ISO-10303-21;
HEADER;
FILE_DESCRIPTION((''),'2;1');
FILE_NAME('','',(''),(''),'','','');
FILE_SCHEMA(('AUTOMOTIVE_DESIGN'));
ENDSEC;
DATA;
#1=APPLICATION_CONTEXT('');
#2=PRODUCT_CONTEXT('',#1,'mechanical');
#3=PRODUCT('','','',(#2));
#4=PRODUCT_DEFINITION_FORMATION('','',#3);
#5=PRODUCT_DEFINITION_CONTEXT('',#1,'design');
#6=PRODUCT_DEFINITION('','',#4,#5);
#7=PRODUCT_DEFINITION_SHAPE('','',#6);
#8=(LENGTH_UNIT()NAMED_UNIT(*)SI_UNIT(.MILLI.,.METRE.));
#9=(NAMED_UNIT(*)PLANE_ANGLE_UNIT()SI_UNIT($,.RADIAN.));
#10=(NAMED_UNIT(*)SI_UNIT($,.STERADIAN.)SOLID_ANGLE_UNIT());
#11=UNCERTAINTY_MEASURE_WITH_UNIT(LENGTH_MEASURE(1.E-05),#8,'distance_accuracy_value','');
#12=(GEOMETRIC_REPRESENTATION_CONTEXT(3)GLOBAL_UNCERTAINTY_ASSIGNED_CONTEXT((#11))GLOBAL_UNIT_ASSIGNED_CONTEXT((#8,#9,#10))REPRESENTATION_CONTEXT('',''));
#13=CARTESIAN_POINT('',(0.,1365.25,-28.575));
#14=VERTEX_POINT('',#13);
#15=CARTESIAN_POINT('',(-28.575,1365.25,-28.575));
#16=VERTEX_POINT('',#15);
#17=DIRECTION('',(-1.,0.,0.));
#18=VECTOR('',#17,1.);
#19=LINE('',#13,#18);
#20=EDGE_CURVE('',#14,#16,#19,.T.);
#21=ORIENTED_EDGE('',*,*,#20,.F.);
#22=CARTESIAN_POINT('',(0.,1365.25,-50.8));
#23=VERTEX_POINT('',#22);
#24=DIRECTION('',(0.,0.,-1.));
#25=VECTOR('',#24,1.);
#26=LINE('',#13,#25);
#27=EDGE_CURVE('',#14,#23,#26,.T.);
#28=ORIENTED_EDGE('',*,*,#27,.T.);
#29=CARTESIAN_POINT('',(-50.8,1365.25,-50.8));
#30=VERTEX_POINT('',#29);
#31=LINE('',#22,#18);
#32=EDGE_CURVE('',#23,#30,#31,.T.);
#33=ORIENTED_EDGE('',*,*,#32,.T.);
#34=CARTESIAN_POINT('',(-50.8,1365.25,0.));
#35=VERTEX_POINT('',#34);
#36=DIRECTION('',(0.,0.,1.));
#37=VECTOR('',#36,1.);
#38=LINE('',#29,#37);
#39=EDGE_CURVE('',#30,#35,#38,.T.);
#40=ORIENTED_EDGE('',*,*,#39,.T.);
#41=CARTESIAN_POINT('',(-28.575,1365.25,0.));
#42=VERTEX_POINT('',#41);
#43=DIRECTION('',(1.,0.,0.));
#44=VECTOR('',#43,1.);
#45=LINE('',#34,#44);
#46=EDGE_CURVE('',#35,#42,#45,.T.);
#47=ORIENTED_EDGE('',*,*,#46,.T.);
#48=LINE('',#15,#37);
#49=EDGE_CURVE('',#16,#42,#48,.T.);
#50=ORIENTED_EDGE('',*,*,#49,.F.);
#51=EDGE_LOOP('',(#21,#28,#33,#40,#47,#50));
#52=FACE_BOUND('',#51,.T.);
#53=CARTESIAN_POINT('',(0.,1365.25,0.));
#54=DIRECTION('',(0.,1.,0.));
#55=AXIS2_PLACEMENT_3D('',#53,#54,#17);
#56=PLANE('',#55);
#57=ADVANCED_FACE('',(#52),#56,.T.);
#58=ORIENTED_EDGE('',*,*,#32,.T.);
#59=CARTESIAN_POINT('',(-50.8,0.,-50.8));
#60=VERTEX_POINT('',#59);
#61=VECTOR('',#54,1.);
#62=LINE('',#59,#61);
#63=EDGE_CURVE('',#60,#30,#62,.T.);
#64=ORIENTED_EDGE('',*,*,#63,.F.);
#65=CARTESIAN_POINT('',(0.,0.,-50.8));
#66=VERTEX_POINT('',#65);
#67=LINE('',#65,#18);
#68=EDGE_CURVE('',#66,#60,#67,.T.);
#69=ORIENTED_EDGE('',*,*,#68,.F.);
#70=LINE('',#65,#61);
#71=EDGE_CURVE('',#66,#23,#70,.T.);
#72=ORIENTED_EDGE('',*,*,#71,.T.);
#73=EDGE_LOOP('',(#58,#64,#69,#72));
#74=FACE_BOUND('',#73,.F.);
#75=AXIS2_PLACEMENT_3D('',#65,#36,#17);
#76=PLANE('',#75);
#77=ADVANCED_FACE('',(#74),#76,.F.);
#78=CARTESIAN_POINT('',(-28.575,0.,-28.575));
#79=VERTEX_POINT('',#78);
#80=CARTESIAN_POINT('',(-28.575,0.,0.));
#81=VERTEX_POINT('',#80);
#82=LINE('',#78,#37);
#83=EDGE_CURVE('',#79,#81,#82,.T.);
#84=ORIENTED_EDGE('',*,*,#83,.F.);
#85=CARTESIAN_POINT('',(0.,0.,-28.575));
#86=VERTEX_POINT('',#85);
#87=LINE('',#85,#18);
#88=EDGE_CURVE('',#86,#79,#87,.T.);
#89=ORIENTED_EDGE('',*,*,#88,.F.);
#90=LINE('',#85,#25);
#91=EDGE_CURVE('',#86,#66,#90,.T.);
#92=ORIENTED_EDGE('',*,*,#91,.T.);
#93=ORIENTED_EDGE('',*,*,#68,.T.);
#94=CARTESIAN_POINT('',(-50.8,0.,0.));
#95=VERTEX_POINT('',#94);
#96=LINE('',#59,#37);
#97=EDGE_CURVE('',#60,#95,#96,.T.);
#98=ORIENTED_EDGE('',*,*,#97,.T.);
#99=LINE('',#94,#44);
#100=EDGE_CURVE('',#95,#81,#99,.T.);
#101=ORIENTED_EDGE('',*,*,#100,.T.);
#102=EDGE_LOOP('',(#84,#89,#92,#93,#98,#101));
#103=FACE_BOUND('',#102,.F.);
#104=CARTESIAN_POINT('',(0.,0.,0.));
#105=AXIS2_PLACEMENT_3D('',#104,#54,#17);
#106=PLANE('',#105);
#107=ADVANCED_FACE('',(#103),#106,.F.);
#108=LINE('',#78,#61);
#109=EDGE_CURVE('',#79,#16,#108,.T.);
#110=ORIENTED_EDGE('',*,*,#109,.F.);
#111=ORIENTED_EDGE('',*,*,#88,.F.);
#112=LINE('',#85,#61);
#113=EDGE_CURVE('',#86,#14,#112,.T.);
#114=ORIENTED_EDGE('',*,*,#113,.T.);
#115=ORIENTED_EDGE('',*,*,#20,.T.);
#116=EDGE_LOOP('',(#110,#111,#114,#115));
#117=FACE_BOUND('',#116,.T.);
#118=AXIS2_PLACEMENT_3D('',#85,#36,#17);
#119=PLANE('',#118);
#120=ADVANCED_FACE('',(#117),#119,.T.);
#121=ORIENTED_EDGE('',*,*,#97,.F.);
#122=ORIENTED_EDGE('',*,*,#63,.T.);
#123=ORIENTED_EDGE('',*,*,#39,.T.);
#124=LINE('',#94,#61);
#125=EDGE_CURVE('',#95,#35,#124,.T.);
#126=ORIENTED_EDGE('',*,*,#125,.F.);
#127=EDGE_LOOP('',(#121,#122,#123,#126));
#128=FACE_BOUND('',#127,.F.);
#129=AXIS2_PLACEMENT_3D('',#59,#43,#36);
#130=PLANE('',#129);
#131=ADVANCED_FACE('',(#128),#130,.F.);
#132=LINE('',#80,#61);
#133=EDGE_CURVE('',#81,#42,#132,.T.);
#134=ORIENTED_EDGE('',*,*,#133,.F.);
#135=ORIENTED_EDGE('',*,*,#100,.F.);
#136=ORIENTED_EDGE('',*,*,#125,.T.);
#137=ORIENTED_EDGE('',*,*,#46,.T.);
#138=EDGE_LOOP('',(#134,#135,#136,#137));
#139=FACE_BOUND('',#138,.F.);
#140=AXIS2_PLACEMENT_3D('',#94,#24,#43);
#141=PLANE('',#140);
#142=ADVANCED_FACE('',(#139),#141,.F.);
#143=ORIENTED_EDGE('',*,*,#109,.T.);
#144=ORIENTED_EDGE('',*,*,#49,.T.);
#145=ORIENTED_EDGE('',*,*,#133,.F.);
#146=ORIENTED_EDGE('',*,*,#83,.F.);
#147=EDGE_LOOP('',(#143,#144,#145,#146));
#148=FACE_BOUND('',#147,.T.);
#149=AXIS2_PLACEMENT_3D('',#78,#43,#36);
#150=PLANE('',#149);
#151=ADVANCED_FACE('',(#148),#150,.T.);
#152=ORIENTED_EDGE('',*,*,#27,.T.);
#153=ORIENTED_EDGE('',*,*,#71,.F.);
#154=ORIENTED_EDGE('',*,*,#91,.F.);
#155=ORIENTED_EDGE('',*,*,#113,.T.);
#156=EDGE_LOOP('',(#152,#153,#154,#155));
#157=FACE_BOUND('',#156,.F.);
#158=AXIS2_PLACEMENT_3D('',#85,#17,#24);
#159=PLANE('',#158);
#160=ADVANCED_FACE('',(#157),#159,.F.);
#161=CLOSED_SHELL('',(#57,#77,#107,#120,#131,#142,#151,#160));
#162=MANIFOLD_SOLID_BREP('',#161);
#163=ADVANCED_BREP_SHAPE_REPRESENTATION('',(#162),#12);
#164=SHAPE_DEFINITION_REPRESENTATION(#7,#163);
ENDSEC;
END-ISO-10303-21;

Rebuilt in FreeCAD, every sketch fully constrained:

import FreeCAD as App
import Part
import Sketcher

V = App.Vector
Q = App.Units.Quantity

doc = App.newDocument("Part")
body = doc.addObject("PartDesign::Body", "Body")

# Sketch on XZ plane
sketch1 = doc.addObject("Sketcher::SketchObject", "Sketch")
body.addObject(sketch1)
sketch1.AttachmentSupport = (doc.XZ_Plane, [""])
sketch1.MapMode = "FlatFace"
sketch1.addGeometry(Part.LineSegment(V(0, -29, 0), V(0, -51, 0)), False)
sketch1.addGeometry(Part.LineSegment(V(0, -51, 0), V(-51, -51, 0)), False)
sketch1.addGeometry(Part.LineSegment(V(-51, -51, 0), V(-51, 0, 0)), False)
sketch1.addGeometry(Part.LineSegment(V(-51, 0, 0), V(-29, 0, 0)), False)
sketch1.addGeometry(Part.LineSegment(V(-29, 0, 0), V(-29, -29, 0)), False)
sketch1.addGeometry(Part.LineSegment(V(-29, -29, 0), V(0, -29, 0)), False)
sketch1.addConstraint(Sketcher.Constraint("Coincident", 0, 2, 1, 1))
sketch1.addConstraint(Sketcher.Constraint("Coincident", 1, 2, 2, 1))
sketch1.addConstraint(Sketcher.Constraint("Coincident", 2, 2, 3, 1))
sketch1.addConstraint(Sketcher.Constraint("Coincident", 3, 2, 4, 1))
sketch1.addConstraint(Sketcher.Constraint("Coincident", 4, 2, 5, 1))
sketch1.addConstraint(Sketcher.Constraint("Coincident", 5, 2, 0, 1))
sketch1.addConstraint(Sketcher.Constraint("Vertical", 0))
sketch1.addConstraint(Sketcher.Constraint("Horizontal", 1))
sketch1.addConstraint(Sketcher.Constraint("Vertical", 2))
sketch1.addConstraint(Sketcher.Constraint("Horizontal", 3))
sketch1.addConstraint(Sketcher.Constraint("Vertical", 4))
sketch1.addConstraint(Sketcher.Constraint("Horizontal", 5))
sketch1.addConstraint(Sketcher.Constraint("PointOnObject", 0, 2, -2))
sketch1.addConstraint(Sketcher.Constraint("PointOnObject", 2, 2, -1))
sketch1.addConstraint(Sketcher.Constraint("Equal", 3, 0))
sketch1.addConstraint(Sketcher.Constraint("Equal", 1, 2))
sketch1.addConstraint(Sketcher.Constraint("DistanceX", 1, 2, 1, 1, Q("2 in")))
sketch1.addConstraint(Sketcher.Constraint("DistanceX", 3, 1, 3, 2, Q("0.875 in")))
pad1 = doc.addObject("PartDesign::Pad", "Pad")
body.addObject(pad1)
pad1.Profile = sketch1
pad1.Length = Q("53.75 in")
pad1.Reversed = True

doc.recompute()
